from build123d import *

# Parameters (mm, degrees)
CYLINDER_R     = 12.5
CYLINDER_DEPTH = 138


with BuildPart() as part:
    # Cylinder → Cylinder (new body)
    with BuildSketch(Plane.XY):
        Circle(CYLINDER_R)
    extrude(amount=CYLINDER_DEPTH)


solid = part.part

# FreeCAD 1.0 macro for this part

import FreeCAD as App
import Part
import Sketcher
Q = App.Units.Quantity

doc = App.newDocument("Part")
body = doc.addObject("PartDesign::Body", "Body")

# Sketch on XY plane
sketch1 = body.newObject("Sketcher::SketchObject", "Sketch")
sketch1.AttachmentSupport = (doc.getObject("XY_Plane"), [""])
sketch1.MapMode = "FlatFace"
sketch1.addGeometry(Part.Circle(App.Vector(0, 0, 0), App.Vector(0, 0, 1), 12), False)
sketch1.addConstraint([
    Sketcher.Constraint("Coincident", 0, 3, -1, 1),
    Sketcher.Constraint("Diameter", 0, Q("25 mm")),
])
pad1 = body.newObject("PartDesign::Pad", "Pad")
pad1.Profile = sketch1
pad1.Length = 138

doc.recompute()
